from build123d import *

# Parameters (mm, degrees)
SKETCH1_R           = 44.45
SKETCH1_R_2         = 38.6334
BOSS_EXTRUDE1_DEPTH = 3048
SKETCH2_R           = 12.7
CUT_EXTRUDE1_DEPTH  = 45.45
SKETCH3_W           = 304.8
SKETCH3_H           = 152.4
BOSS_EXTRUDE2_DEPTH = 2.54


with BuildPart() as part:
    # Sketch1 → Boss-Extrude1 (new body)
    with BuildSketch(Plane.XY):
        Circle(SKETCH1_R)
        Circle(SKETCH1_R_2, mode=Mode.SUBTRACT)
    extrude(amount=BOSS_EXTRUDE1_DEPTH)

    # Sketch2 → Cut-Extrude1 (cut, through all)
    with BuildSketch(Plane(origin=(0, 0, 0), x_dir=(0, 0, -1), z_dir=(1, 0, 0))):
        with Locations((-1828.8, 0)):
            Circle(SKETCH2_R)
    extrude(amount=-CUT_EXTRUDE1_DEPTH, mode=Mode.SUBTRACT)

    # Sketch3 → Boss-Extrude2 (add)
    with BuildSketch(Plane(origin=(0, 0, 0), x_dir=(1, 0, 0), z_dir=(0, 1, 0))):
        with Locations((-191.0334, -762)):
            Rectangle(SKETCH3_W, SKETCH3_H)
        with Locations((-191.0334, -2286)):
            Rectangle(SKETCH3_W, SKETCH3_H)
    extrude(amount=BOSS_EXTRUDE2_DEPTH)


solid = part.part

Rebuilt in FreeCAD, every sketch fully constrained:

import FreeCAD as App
import Part
import Sketcher
Q = App.Units.Quantity

doc = App.newDocument("Part")
body = doc.addObject("PartDesign::Body", "Body")

sketch1 = body.newObject("Sketcher::SketchObject", "Sketch")
sketch1.AttachmentSupport = (doc.getObject("XY_Plane"), [""])
sketch1.MapMode = "FlatFace"
sketch1.addGeometry(Part.Circle(App.Vector(0, 0, 0), App.Vector(0, 0, 1), 44.45), False)
sketch1.addGeometry(Part.Circle(App.Vector(0, 0, 0), App.Vector(0, 0, 1), 38.6334), False)
sketch1.addConstraint(Sketcher.Constraint("Coincident", 0, 3, -1, 1))
sketch1.addConstraint(Sketcher.Constraint("Coincident", 1, 3, -1, 1))
sketch1.addConstraint(Sketcher.Constraint("Diameter", 0, Q("3.5 in")))
sketch1.addConstraint(Sketcher.Constraint("Diameter", 1, Q("3.042 in")))
pad1 = body.newObject("PartDesign::Pad", "Pad")
pad1.Profile = sketch1
pad1.Length = Q("120 in")

sketch2 = body.newObject("Sketcher::SketchObject", "Sketch001")
sketch2.AttachmentSupport = (doc.getObject("YZ_Plane"), [""])
sketch2.MapMode = "FlatFace"
sketch2.addGeometry(Part.Circle(App.Vector(0, 1828.8, 0), App.Vector(0, 0, 1), 12.7), False)
sketch2.addConstraint(Sketcher.Constraint("PointOnObject", 0, 3, -2))
sketch2.addConstraint(Sketcher.Constraint("Diameter", 0, Q("1 in")))
sketch2.addConstraint(Sketcher.Constraint("DistanceY", -1, 1, 0, 3, Q("72 in")))
pocket1 = body.newObject("PartDesign::Pocket", "Pocket")
pocket1.Profile = sketch2
pocket1.Type = "ThroughAll"

sketch3 = body.newObject("Sketcher::SketchObject", "Sketch002")
sketch3.AttachmentSupport = (doc.getObject("XZ_Plane"), [""])
sketch3.MapMode = "FlatFace"
sketch3.addGeometry(Part.LineSegment(App.Vector(-343.4334, 685.8, 0), App.Vector(-343.4334, 838.2, 0)), False)
sketch3.addGeometry(Part.LineSegment(App.Vector(-343.4334, 838.2, 0), App.Vector(-38.6334, 838.2, 0)), False)
sketch3.addGeometry(Part.LineSegment(App.Vector(-38.6334, 838.2, 0), App.Vector(-38.6334, 685.8, 0)), False)
sketch3.addGeometry(Part.LineSegment(App.Vector(-38.6334, 685.8, 0), App.Vector(-343.4334, 685.8, 0)), False)
sketch3.addGeometry(Part.LineSegment(App.Vector(-343.4334, 2209.8, 0), App.Vector(-343.4334, 2362.2, 0)), False)
sketch3.addGeometry(Part.LineSegment(App.Vector(-343.4334, 2362.2, 0), App.Vector(-38.6334, 2362.2, 0)), False)
sketch3.addGeometry(Part.LineSegment(App.Vector(-38.6334, 2362.2, 0), App.Vector(-38.6334, 2209.8, 0)), False)
sketch3.addGeometry(Part.LineSegment(App.Vector(-38.6334, 2209.8, 0), App.Vector(-343.4334, 2209.8, 0)), False)
sketch3.addConstraint(Sketcher.Constraint("Coincident", 0, 2, 1, 1))
sketch3.addConstraint(Sketcher.Constraint("Coincident", 1, 2, 2, 1))
sketch3.addConstraint(Sketcher.Constraint("Coincident", 2, 2, 3, 1))
sketch3.addConstraint(Sketcher.Constraint("Coincident", 3, 2, 0, 1))
sketch3.addConstraint(Sketcher.Constraint("Coincident", 4, 2, 5, 1))
sketch3.addConstraint(Sketcher.Constraint("Coincident", 5, 2, 6, 1))
sketch3.addConstraint(Sketcher.Constraint("Coincident", 6, 2, 7, 1))
sketch3.addConstraint(Sketcher.Constraint("Coincident", 7, 2, 4, 1))
sketch3.addConstraint(Sketcher.Constraint("Vertical", 0))
sketch3.addConstraint(Sketcher.Constraint("Horizontal", 1))
sketch3.addConstraint(Sketcher.Constraint("Vertical", 2))
sketch3.addConstraint(Sketcher.Constraint("Horizontal", 3))
sketch3.addConstraint(Sketcher.Constraint("Vertical", 4))
sketch3.addConstraint(Sketcher.Constraint("Horizontal", 5))
sketch3.addConstraint(Sketcher.Constraint("Vertical", 6))
sketch3.addConstraint(Sketcher.Constraint("Horizontal", 7))
sketch3.addConstraint(Sketcher.Constraint("Vertical", 3, 2, 4, 2))
sketch3.addConstraint(Sketcher.Constraint("Vertical", 2, 2, 5, 2))
sketch3.addConstraint(Sketcher.Constraint("Equal", 2, 4))
sketch3.addConstraint(Sketcher.Constraint("DistanceX", 1, 1, 1, 2, Q("12 in")))
sketch3.addConstraint(Sketcher.Constraint("DistanceY", 0, 1, 0, 2, Q("6 in")))
sketch3.addConstraint(Sketcher.Constraint("DistanceY", -1, 1, 0, 2, Q("33 in")))
sketch3.addConstraint(Sketcher.Constraint("DistanceY", -1, 1, 4, 2, Q("93 in")))
sketch3.addConstraint(Sketcher.Constraint("DistanceX", 0, 2, -1, 1, Q("13.521 in")))
pad2 = body.newObject("PartDesign::Pad", "Pad001")
pad2.Profile = sketch3
pad2.Length = Q("0.1 in")
pad2.Reversed = True

doc.recompute()
